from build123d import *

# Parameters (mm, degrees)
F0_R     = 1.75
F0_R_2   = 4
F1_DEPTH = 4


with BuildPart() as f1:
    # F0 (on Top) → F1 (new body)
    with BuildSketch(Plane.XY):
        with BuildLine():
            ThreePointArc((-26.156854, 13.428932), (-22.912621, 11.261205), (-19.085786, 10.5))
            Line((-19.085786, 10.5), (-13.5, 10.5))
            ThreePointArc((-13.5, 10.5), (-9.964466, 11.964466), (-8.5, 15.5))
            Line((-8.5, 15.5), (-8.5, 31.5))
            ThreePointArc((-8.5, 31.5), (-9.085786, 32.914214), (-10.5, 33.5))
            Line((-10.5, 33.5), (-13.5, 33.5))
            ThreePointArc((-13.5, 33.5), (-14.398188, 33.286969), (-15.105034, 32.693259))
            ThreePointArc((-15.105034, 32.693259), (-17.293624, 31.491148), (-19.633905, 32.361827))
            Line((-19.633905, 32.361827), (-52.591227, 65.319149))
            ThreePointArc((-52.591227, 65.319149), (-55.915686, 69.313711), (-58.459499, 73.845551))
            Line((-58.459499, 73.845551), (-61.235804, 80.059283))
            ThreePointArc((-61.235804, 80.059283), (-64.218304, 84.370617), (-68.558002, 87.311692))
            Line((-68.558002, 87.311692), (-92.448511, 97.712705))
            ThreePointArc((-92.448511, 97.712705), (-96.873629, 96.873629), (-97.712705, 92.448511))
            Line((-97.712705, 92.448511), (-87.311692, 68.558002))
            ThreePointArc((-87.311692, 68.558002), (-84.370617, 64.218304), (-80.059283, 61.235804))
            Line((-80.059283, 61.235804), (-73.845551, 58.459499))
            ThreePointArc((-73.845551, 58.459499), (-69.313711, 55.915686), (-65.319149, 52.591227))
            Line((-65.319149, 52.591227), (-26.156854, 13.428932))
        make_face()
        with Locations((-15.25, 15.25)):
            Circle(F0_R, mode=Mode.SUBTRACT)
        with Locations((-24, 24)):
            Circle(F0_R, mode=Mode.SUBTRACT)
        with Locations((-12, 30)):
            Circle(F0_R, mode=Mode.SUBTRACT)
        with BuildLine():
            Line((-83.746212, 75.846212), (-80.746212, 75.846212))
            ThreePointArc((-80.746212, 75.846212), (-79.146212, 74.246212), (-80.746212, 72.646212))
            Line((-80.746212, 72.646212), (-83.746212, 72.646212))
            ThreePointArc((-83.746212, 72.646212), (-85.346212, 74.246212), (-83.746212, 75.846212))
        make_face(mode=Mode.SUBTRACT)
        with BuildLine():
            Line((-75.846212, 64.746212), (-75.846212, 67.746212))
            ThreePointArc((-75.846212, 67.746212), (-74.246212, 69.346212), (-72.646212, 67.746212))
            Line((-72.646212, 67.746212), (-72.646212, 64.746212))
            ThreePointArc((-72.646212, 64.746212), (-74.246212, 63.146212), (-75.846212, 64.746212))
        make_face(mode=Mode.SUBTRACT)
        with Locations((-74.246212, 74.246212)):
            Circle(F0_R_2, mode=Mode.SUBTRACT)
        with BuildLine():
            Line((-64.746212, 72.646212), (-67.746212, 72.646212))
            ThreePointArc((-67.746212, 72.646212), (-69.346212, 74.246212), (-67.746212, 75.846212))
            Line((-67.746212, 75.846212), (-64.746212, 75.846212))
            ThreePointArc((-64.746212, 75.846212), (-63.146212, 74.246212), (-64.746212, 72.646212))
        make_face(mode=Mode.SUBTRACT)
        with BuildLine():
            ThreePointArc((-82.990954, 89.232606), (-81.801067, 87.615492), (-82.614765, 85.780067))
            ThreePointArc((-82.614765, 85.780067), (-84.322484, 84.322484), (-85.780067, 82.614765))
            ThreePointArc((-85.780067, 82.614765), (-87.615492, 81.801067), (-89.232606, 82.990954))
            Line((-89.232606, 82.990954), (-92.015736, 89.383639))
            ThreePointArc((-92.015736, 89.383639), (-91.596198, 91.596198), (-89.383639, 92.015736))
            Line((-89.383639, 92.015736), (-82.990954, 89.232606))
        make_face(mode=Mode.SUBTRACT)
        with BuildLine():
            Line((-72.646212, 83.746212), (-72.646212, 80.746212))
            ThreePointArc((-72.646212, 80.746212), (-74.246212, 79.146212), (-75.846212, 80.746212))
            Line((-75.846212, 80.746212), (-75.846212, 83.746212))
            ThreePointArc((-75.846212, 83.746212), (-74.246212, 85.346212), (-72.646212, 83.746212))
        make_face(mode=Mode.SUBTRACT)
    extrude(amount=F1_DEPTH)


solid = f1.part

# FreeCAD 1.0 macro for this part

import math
import FreeCAD as App
import Part
import Sketcher

V = App.Vector
Q = App.Units.Quantity

doc = App.newDocument("Part")
body = doc.addObject("PartDesign::Body", "Body")

# Sketch on XY plane
sketch1 = doc.addObject("Sketcher::SketchObject", "Sketch")
body.addObject(sketch1)
sketch1.AttachmentSupport = (doc.XY_Plane, [""])
sketch1.MapMode = "FlatFace"
sketch1.addGeometry(Part.ArcOfCircle(Part.Circle(V(-19.085785, 20.500002, 0), V(0, 0, 1), 10.000002), math.radians(-134.999993), math.radians(-90.000003)), False)
sketch1.addGeometry(Part.LineSegment(V(-19.085786, 10.5, 0), V(-13.5, 10.5, 0)), False)
sketch1.addGeometry(Part.ArcOfCircle(Part.Circle(V(-13.5, 15.5, 0), V(0, 0, 1), 5), math.radians(-90.000004), math.radians(0.000004)), False)
sketch1.addGeometry(Part.LineSegment(V(-8.5, 15.5, 0), V(-8.5, 31.5, 0)), False)
sketch1.addGeometry(Part.ArcOfCircle(Part.Circle(V(-10.499999, 31.500001, 0), V(0, 0, 1), 1.999999), math.radians(-0.000043), math.radians(90.000043)), False)
sketch1.addGeometry(Part.LineSegment(V(-10.5, 33.5, 0), V(-13.5, 33.5, 0)), False)
sketch1.addGeometry(Part.ArcOfCircle(Part.Circle(V(-13.5, 31.499998, 0), V(0, 0, 1), 2.000002), math.radians(90.000013), math.radians(143.371094)), False)
sketch1.addGeometry(Part.ArcOfCircle(Part.Circle(V(-17.512584, 34.483146, 0), V(0, 0, 1), 2.999999), math.radians(-135.000026), math.radians(-36.628854)), False)
sketch1.addGeometry(Part.LineSegment(V(-19.633905, 32.361827, 0), V(-52.591227, 65.319149, 0)), False)
sketch1.addGeometry(Part.ArcOfCircle(Part.Circle(V(-32.438683, 85.471692, 0), V(0, 0, 1), 28.5), math.radians(-155.924834), math.radians(-135.000001)), False)
sketch1.addGeometry(Part.LineSegment(V(-58.459499, 73.845551, 0), V(-61.235804, 80.059283, 0)), False)
sketch1.addGeometry(Part.ArcOfCircle(Part.Circle(V(-74.246208, 74.246215, 0), V(0, 0, 1), 14.249995), math.radians(24.075162), math.radians(66.473543)), False)
sketch1.addGeometry(Part.LineSegment(V(-68.558002, 87.311692, 0), V(-92.448511, 97.712705, 0)), False)
sketch1.addGeometry(Part.ArcOfCircle(Part.Circle(V(-94.045202, 94.045202, 0), V(0, 0, 1), 4), math.radians(66.473532), math.radians(203.526468)), False)
sketch1.addGeometry(Part.LineSegment(V(-97.712705, 92.448511, 0), V(-87.311692, 68.558002, 0)), False)
sketch1.addGeometry(Part.ArcOfCircle(Part.Circle(V(-74.246215, 74.246208, 0), V(0, 0, 1), 14.249995), math.radians(-156.473543), math.radians(-114.075162)), False)
sketch1.addGeometry(Part.LineSegment(V(-80.059283, 61.235804, 0), V(-73.845551, 58.459499, 0)), False)
sketch1.addGeometry(Part.ArcOfCircle(Part.Circle(V(-85.471692, 32.438683, 0), V(0, 0, 1), 28.5), math.radians(45.000001), math.radians(65.924834)), False)
sketch1.addGeometry(Part.LineSegment(V(-65.319149, 52.591227, 0), V(-26.156854, 13.428932, 0)), False)
sketch1.addGeometry(Part.Circle(V(-15.25, 15.25, 0), V(0, 0, 1), 1.75), False)
sketch1.addGeometry(Part.Circle(V(-24, 24, 0), V(0, 0, 1), 1.75), False)
sketch1.addGeometry(Part.Circle(V(-12, 30, 0), V(0, 0, 1), 1.75), False)
sketch1.addGeometry(Part.ArcOfCircle(Part.Circle(V(-74.246212, 64.746212, 0), V(0, 0, 1), 1.6), math.radians(180), math.radians(360)), False)
sketch1.addGeometry(Part.LineSegment(V(-75.846212, 64.746212, 0), V(-75.846212, 67.746212, 0)), False)
sketch1.addGeometry(Part.ArcOfCircle(Part.Circle(V(-74.246212, 67.746212, 0), V(0, 0, 1), 1.6), math.radians(0), math.radians(180)), False)
sketch1.addGeometry(Part.LineSegment(V(-72.646212, 67.746212, 0), V(-72.646212, 64.746212, 0)), False)
sketch1.addGeometry(Part.ArcOfCircle(Part.Circle(V(-83.746212, 74.246212, 0), V(0, 0, 1), 1.6), math.radians(90), math.radians(270)), False)
sketch1.addGeometry(Part.LineSegment(V(-83.746212, 75.846212, 0), V(-80.746212, 75.846212, 0)), False)
sketch1.addGeometry(Part.ArcOfCircle(Part.Circle(V(-80.746212, 74.246212, 0), V(0, 0, 1), 1.6), math.radians(-90), math.radians(90)), False)
sketch1.addGeometry(Part.LineSegment(V(-80.746212, 72.646212, 0), V(-83.746212, 72.646212, 0)), False)
sketch1.addGeometry(Part.Circle(V(-74.246212, 74.246212, 0), V(0, 0, 1), 4), False)
sketch1.addGeometry(Part.ArcOfCircle(Part.Circle(V(-74.246212, 83.746212, 0), V(0, 0, 1), 1.6), math.radians(0), math.radians(180)), False)
sketch1.addGeometry(Part.LineSegment(V(-72.646212, 83.746212, 0), V(-72.646212, 80.746212, 0)), False)
sketch1.addGeometry(Part.ArcOfCircle(Part.Circle(V(-74.246212, 80.746212, 0), V(0, 0, 1), 1.6), math.radians(180), math.radians(360)), False)
sketch1.addGeometry(Part.LineSegment(V(-75.846212, 80.746212, 0), V(-75.846212, 83.746212, 0)), False)
sketch1.addGeometry(Part.LineSegment(V(-89.383639, 92.015736, 0), V(-82.990954, 89.232606, 0)), False)
sketch1.addGeometry(Part.ArcOfCircle(Part.Circle(V(-83.7893, 87.398854, 0), V(0, 0, 1), 2.000001), math.radians(-54.036667), math.radians(66.473512)), False)
sketch1.addGeometry(Part.ArcOfCircle(Part.Circle(V(-74.246261, 74.246261, 0), V(0, 0, 1), 14.249932), math.radians(125.963254), math.radians(144.036746)), False)
sketch1.addGeometry(Part.ArcOfCircle(Part.Circle(V(-87.398854, 83.7893, 0), V(0, 0, 1), 2.000001), math.radians(-156.473512), math.radians(-35.963333)), False)
sketch1.addGeometry(Part.LineSegment(V(-89.232606, 82.990954, 0), V(-92.015736, 89.383639, 0)), False)
sketch1.addGeometry(Part.ArcOfCircle(Part.Circle(V(-90.181984, 90.181984, 0), V(0, 0, 1), 2), math.radians(66.473532), math.radians(203.526468)), False)
sketch1.addGeometry(Part.ArcOfCircle(Part.Circle(V(-64.746212, 74.246212, 0), V(0, 0, 1), 1.6), math.radians(-90), math.radians(90)), False)
sketch1.addGeometry(Part.LineSegment(V(-64.746212, 72.646212, 0), V(-67.746212, 72.646212, 0)), False)
sketch1.addGeometry(Part.ArcOfCircle(Part.Circle(V(-67.746212, 74.246212, 0), V(0, 0, 1), 1.6), math.radians(90), math.radians(270)), False)
sketch1.addGeometry(Part.LineSegment(V(-67.746212, 75.846212, 0), V(-64.746212, 75.846212, 0)), False)
sketch1.addConstraint(Sketcher.Constraint("Tangent", 0, 2, 1, 1))
sketch1.addConstraint(Sketcher.Constraint("Tangent", 1, 2, 2, 1))
sketch1.addConstraint(Sketcher.Constraint("Tangent", 2, 2, 3, 1))
sketch1.addConstraint(Sketcher.Constraint("Tangent", 3, 2, 4, 1))
sketch1.addConstraint(Sketcher.Constraint("Tangent", 4, 2, 5, 1))
sketch1.addConstraint(Sketcher.Constraint("Tangent", 5, 2, 6, 1))
sketch1.addConstraint(Sketcher.Constraint("Tangent", 6, 2, 7, 2))
sketch1.addConstraint(Sketcher.Constraint("Tangent", 7, 1, 8, 1))
sketch1.addConstraint(Sketcher.Constraint("Tangent", 8, 2, 9, 2))
sketch1.addConstraint(Sketcher.Constraint("Tangent", 9, 1, 10, 1))
sketch1.addConstraint(Sketcher.Constraint("Tangent", 10, 2, 11, 1))
sketch1.addConstraint(Sketcher.Constraint("Tangent", 11, 2, 12, 1))
sketch1.addConstraint(Sketcher.Constraint("Tangent", 12, 2, 13, 1))
sketch1.addConstraint(Sketcher.Constraint("Tangent", 13, 2, 14, 1))
sketch1.addConstraint(Sketcher.Constraint("Tangent", 14, 2, 15, 1))
sketch1.addConstraint(Sketcher.Constraint("Tangent", 15, 2, 16, 1))
sketch1.addConstraint(Sketcher.Constraint("Tangent", 16, 2, 17, 2))
sketch1.addConstraint(Sketcher.Constraint("Tangent", 17, 1, 18, 1))
sketch1.addConstraint(Sketcher.Constraint("Tangent", 18, 2, 0, 1))
sketch1.addConstraint(Sketcher.Constraint("Tangent", 22, 1, 23, 1))
sketch1.addConstraint(Sketcher.Constraint("Tangent", 23, 2, 24, 2))
sketch1.addConstraint(Sketcher.Constraint("Tangent", 24, 1, 25, 1))
sketch1.addConstraint(Sketcher.Constraint("Tangent", 25, 2, 22, 2))
sketch1.addConstraint(Sketcher.Constraint("Tangent", 26, 1, 27, 1))
sketch1.addConstraint(Sketcher.Constraint("Tangent", 27, 2, 28, 2))
sketch1.addConstraint(Sketcher.Constraint("Tangent", 28, 1, 29, 1))
sketch1.addConstraint(Sketcher.Constraint("Tangent", 29, 2, 26, 2))
sketch1.addConstraint(Sketcher.Constraint("Tangent", 31, 1, 32, 1))
sketch1.addConstraint(Sketcher.Constraint("Tangent", 32, 2, 33, 2))
sketch1.addConstraint(Sketcher.Constraint("Tangent", 33, 1, 34, 1))
sketch1.addConstraint(Sketcher.Constraint("Tangent", 34, 2, 31, 2))
sketch1.addConstraint(Sketcher.Constraint("Tangent", 35, 2, 36, 2))
sketch1.addConstraint(Sketcher.Constraint("Tangent", 36, 1, 37, 1))
sketch1.addConstraint(Sketcher.Constraint("Tangent", 37, 2, 38, 2))
sketch1.addConstraint(Sketcher.Constraint("Tangent", 38, 1, 39, 1))
sketch1.addConstraint(Sketcher.Constraint("Tangent", 39, 2, 40, 2))
sketch1.addConstraint(Sketcher.Constraint("Tangent", 40, 1, 35, 1))
sketch1.addConstraint(Sketcher.Constraint("Tangent", 41, 1, 42, 1))
sketch1.addConstraint(Sketcher.Constraint("Tangent", 42, 2, 43, 2))
sketch1.addConstraint(Sketcher.Constraint("Tangent", 43, 1, 44, 1))
sketch1.addConstraint(Sketcher.Constraint("Tangent", 44, 2, 41, 2))
sketch1.addConstraint(Sketcher.Constraint("Horizontal", 1))
sketch1.addConstraint(Sketcher.Constraint("Vertical", 3))
sketch1.addConstraint(Sketcher.Constraint("Horizontal", 5))
sketch1.addConstraint(Sketcher.Constraint("Vertical", 23))
sketch1.addConstraint(Sketcher.Constraint("Vertical", 25))
sketch1.addConstraint(Sketcher.Constraint("Horizontal", 27))
sketch1.addConstraint(Sketcher.Constraint("Horizontal", 29))
sketch1.addConstraint(Sketcher.Constraint("Vertical", 32))
sketch1.addConstraint(Sketcher.Constraint("Vertical", 34))
sketch1.addConstraint(Sketcher.Constraint("Horizontal", 42))
sketch1.addConstraint(Sketcher.Constraint("Horizontal", 44))
sketch1.addConstraint(Sketcher.Constraint("Coincident", 30, 3, 11, 3))
sketch1.addConstraint(Sketcher.Constraint("Equal", 11, 15))
sketch1.addConstraint(Sketcher.Constraint("Equal", 9, 17))
sketch1.addConstraint(Sketcher.Constraint("Equal", 19, 20))
sketch1.addConstraint(Sketcher.Constraint("Equal", 20, 21))
sketch1.addConstraint(Sketcher.Constraint("Equal", 24, 26))
sketch1.addConstraint(Sketcher.Constraint("Equal", 13, 30))
sketch1.addConstraint(Sketcher.Constraint("Equal", 28, 31))
sketch1.addConstraint(Sketcher.Constraint("Equal", 6, 36))
sketch1.addConstraint(Sketcher.Constraint("Equal", 36, 38))
sketch1.addConstraint(Sketcher.Constraint("Equal", 38, 40))
sketch1.addConstraint(Sketcher.Constraint("Equal", 33, 41))
sketch1.addConstraint(Sketcher.Constraint("Parallel", 8, 18))
sketch1.addConstraint(Sketcher.Constraint("Parallel", 12, 35))
sketch1.addConstraint(Sketcher.Constraint("Parallel", 14, 39))
sketch1.addConstraint(Sketcher.Constraint("Horizontal", 28, 3, 30, 3))
sketch1.addConstraint(Sketcher.Constraint("Horizontal", 30, 3, 41, 3))
sketch1.addConstraint(Sketcher.Constraint("Horizontal", 6, 3, 3, 2))
sketch1.addConstraint(Sketcher.Constraint("Vertical", 2, 3, 6, 3))
sketch1.addConstraint(Sketcher.Constraint("Vertical", 24, 3, 30, 3))
sketch1.addConstraint(Sketcher.Constraint("Vertical", 30, 3, 31, 3))
sketch1.addConstraint(Sketcher.Constraint("Equal", 5, 27))
sketch1.addConstraint(Sketcher.Constraint("Equal", 29, 42))
sketch1.addConstraint(Sketcher.Constraint("Equal", 44, 23))
sketch1.addConstraint(Sketcher.Constraint("Equal", 25, 32))
sketch1.addConstraint(Sketcher.Constraint("Equal", 12, 14))
sketch1.addConstraint(Sketcher.Constraint("Equal", 10, 16))
sketch1.addConstraint(Sketcher.Constraint("Equal", 35, 39))
sketch1.addConstraint(Sketcher.Constraint("Diameter", 30, 8.0))
sketch1.addConstraint(Sketcher.Constraint("Radius", 2, 5.0))
sketch1.addConstraint(Sketcher.Constraint("Radius", 4, 1.999999))
sketch1.addConstraint(Sketcher.Constraint("Radius", 7, 2.999999))
sketch1.addConstraint(Sketcher.Constraint("Diameter", 19, 3.5))
sketch1.addConstraint(Sketcher.Constraint("Radius", 9, 28.5))
sketch1.addConstraint(Sketcher.Constraint("Radius", 22, 1.6))
sketch1.addConstraint(Sketcher.Constraint("DistanceY", 3, 1, 3, 2, 16.0))
sketch1.addConstraint(Sketcher.Constraint("Angle", 8, Q("135 deg")))
sketch1.addConstraint(Sketcher.Constraint("DistanceX", 20, 3, -1, 1, 24.0))
sketch1.addConstraint(Sketcher.Constraint("DistanceY", -1, 1, 20, 3, 24.0))
sketch1.addConstraint(Sketcher.Constraint("DistanceX", 21, 3, -1, 1, 12.0))
sketch1.addConstraint(Sketcher.Constraint("DistanceY", -1, 1, 21, 3, 30.0))
sketch1.addConstraint(Sketcher.Constraint("DistanceX", 2, 3, -1, 1, 13.5))
sketch1.addConstraint(Sketcher.Constraint("DistanceY", -1, 1, 2, 3, 15.5))
sketch1.addConstraint(Sketcher.Constraint("DistanceX", 19, 3, -1, 1, 15.25))
sketch1.addConstraint(Sketcher.Constraint("DistanceY", -1, 1, 19, 3, 15.25))
sketch1.addConstraint(Sketcher.Constraint("Radius", 37, 14.249932))
sketch1.addConstraint(Sketcher.Constraint("DistanceX", 11, 2, -1, 1, 68.558002))
sketch1.addConstraint(Sketcher.Constraint("DistanceY", -1, 1, 14, 2, 68.558002))
sketch1.addConstraint(Sketcher.Constraint("Radius", 0, 10.000002))
sketch1.addConstraint(Sketcher.Constraint("Radius", 11, 14.249995))
sketch1.addConstraint(Sketcher.Constraint("DistanceX", 13, 3, -1, 1, 94.045202))
sketch1.addConstraint(Sketcher.Constraint("DistanceY", -1, 1, 13, 3, 94.045202))
sketch1.addConstraint(Sketcher.Constraint("DistanceX", 36, 3, -1, 1, 83.7893))
sketch1.addConstraint(Sketcher.Constraint("DistanceY", -1, 1, 38, 3, 83.7893))
sketch1.addConstraint(Sketcher.Constraint("DistanceX", 9, 1, -1, 1, 58.459499))
sketch1.addConstraint(Sketcher.Constraint("DistanceY", -1, 1, 16, 2, 58.459499))
sketch1.addConstraint(Sketcher.Constraint("Distance", 8, 46.608692))
sketch1.addConstraint(Sketcher.Constraint("Distance", 12, 26.056429))
sketch1.addConstraint(Sketcher.Constraint("DistanceY", -1, 1, 22, 3, 64.746212))
sketch1.addConstraint(Sketcher.Constraint("DistanceX", 26, 3, -1, 1, 83.746212))
sketch1.addConstraint(Sketcher.Constraint("DistanceY", -1, 1, 31, 3, 83.746212))
sketch1.addConstraint(Sketcher.Constraint("DistanceX", 37, 3, -1, 1, 74.246261))
sketch1.addConstraint(Sketcher.Constraint("DistanceX", 41, 3, -1, 1, 64.746212))
pad1 = doc.addObject("PartDesign::Pad", "Pad")
body.addObject(pad1)
pad1.Profile = sketch1
pad1.Length = 4

doc.recompute()
